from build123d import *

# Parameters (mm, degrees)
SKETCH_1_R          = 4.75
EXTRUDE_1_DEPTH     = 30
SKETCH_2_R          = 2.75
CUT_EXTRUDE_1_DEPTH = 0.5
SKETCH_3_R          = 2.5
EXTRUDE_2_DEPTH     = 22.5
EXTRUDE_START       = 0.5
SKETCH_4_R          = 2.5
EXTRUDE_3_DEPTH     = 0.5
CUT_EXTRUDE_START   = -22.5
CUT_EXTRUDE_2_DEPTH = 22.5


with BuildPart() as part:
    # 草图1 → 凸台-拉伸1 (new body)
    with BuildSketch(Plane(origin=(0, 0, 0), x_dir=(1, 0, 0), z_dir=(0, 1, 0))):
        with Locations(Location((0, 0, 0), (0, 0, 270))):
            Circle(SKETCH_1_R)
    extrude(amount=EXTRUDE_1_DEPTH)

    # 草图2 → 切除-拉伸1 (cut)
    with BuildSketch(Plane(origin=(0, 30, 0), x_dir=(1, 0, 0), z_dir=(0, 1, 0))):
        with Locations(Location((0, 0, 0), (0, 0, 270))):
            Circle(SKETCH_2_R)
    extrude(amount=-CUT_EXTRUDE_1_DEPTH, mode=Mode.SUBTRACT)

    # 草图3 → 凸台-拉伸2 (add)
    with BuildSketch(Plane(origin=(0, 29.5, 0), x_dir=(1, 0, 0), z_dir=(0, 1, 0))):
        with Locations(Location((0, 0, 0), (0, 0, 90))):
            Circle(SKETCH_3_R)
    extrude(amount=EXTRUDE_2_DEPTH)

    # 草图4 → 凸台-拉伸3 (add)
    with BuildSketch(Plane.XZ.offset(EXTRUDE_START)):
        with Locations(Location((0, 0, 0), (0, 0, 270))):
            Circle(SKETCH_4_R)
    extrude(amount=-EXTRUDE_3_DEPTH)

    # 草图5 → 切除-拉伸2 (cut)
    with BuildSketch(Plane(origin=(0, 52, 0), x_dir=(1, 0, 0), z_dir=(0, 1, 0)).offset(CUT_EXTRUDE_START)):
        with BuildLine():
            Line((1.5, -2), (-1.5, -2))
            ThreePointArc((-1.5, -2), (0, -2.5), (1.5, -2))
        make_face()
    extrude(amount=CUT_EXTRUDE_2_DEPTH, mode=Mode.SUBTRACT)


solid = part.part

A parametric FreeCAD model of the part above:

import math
import FreeCAD as App
import Part
import Sketcher
from FreeCAD import Vector
Q = App.Units.Quantity

doc = App.newDocument("Part")
body = doc.addObject("PartDesign::Body", "Body")

# Sketch on XZ plane
sketch1 = doc.addObject("Sketcher::SketchObject", "Sketch")
body.addObject(sketch1)
sketch1.AttachmentSupport = (doc.XZ_Plane, [""])
sketch1.MapMode = "FlatFace"
sketch1.addGeometry(Part.Circle(Vector(0, 0, 0), Vector(0, 0, 1), 4.8), False)
sketch1.addConstraint(Sketcher.Constraint("Coincident", 0, 3, -1, 1))
sketch1.addConstraint(Sketcher.Constraint("Diameter", 0, Q("9.5 mm")))
pad1 = doc.addObject("PartDesign::Pad", "Pad")
body.addObject(pad1)
pad1.Profile = sketch1
pad1.Length = 30
pad1.Reversed = True

# Sketch on XZ plane
sketch2 = doc.addObject("Sketcher::SketchObject", "Sketch001")
body.addObject(sketch2)
sketch2.AttachmentSupport = (doc.XZ_Plane, [""])
sketch2.MapMode = "FlatFace"
sketch2.AttachmentOffset = App.Placement(Vector(0, 0, -30), App.Rotation())
sketch2.addGeometry(Part.Circle(Vector(0, 0, 0), Vector(0, 0, 1), 2.8), False)
sketch2.addConstraint(Sketcher.Constraint("Coincident", 0, 3, -1, 1))
sketch2.addConstraint(Sketcher.Constraint("Diameter", 0, Q("5.5 mm")))
pocket1 = doc.addObject("PartDesign::Pocket", "Pocket")
body.addObject(pocket1)
pocket1.Profile = sketch2
pocket1.Length = 0.5
pocket1.Reversed = True

# Sketch on XZ plane
sketch3 = doc.addObject("Sketcher::SketchObject", "Sketch002")
body.addObject(sketch3)
sketch3.AttachmentSupport = (doc.XZ_Plane, [""])
sketch3.MapMode = "FlatFace"
sketch3.AttachmentOffset = App.Placement(Vector(0, 0, -29.5), App.Rotation())
sketch3.addGeometry(Part.Circle(Vector(0, 0, 0), Vector(0, 0, 1), 2.5), False)
sketch3.addConstraint(Sketcher.Constraint("Coincident", 0, 3, -1, 1))
sketch3.addConstraint(Sketcher.Constraint("Diameter", 0, Q("5 mm")))
pad2 = doc.addObject("PartDesign::Pad", "Pad001")
body.addObject(pad2)
pad2.Profile = sketch3
pad2.Length = 22.5
pad2.Reversed = True

# Sketch on XZ plane
sketch4 = doc.addObject("Sketcher::SketchObject", "Sketch003")
body.addObject(sketch4)
sketch4.AttachmentSupport = (doc.XZ_Plane, [""])
sketch4.MapMode = "FlatFace"
sketch4.AttachmentOffset = App.Placement(Vector(0, 0, 0.5), App.Rotation())
sketch4.addGeometry(Part.Circle(Vector(0, 0, 0), Vector(0, 0, 1), 2.5), False)
sketch4.addConstraint(Sketcher.Constraint("Coincident", 0, 3, -1, 1))
sketch4.addConstraint(Sketcher.Constraint("Diameter", 0, Q("5 mm")))
pad3 = doc.addObject("PartDesign::Pad", "Pad002")
body.addObject(pad3)
pad3.Profile = sketch4
pad3.Length = 0.5
pad3.Reversed = True

# Sketch on XZ plane
sketch5 = doc.addObject("Sketcher::SketchObject", "Sketch004")
body.addObject(sketch5)
sketch5.AttachmentSupport = (doc.XZ_Plane, [""])
sketch5.MapMode = "FlatFace"
sketch5.AttachmentOffset = App.Placement(Vector(0, 0, -29.5), App.Rotation())
sketch5.addGeometry(Part.LineSegment(Vector(1.5, 2, 0), Vector(-1.5, 2, 0)), False)
sketch5.addGeometry(Part.ArcOfCircle(Part.Circle(Vector(0, 0, 0), Vector(0, 0, 1), 2.5), math.radians(53), math.radians(127)), False)
sketch5.addConstraint(Sketcher.Constraint("Coincident", 0, 1, 1, 1))
sketch5.addConstraint(Sketcher.Constraint("Coincident", 1, 2, 0, 2))
sketch5.addConstraint(Sketcher.Constraint("Horizontal", 0))
sketch5.addConstraint(Sketcher.Constraint("Coincident", 1, 3, -1, 1))
sketch5.addConstraint(Sketcher.Constraint("Radius", 1, Q("2.5 mm")))
sketch5.addConstraint(Sketcher.Constraint("DistanceX", 0, 2, 0, 1, Q("3 mm")))
pocket2 = doc.addObject("PartDesign::Pocket", "Pocket001")
body.addObject(pocket2)
pocket2.Profile = sketch5
pocket2.Length = 22.5

doc.recompute()
